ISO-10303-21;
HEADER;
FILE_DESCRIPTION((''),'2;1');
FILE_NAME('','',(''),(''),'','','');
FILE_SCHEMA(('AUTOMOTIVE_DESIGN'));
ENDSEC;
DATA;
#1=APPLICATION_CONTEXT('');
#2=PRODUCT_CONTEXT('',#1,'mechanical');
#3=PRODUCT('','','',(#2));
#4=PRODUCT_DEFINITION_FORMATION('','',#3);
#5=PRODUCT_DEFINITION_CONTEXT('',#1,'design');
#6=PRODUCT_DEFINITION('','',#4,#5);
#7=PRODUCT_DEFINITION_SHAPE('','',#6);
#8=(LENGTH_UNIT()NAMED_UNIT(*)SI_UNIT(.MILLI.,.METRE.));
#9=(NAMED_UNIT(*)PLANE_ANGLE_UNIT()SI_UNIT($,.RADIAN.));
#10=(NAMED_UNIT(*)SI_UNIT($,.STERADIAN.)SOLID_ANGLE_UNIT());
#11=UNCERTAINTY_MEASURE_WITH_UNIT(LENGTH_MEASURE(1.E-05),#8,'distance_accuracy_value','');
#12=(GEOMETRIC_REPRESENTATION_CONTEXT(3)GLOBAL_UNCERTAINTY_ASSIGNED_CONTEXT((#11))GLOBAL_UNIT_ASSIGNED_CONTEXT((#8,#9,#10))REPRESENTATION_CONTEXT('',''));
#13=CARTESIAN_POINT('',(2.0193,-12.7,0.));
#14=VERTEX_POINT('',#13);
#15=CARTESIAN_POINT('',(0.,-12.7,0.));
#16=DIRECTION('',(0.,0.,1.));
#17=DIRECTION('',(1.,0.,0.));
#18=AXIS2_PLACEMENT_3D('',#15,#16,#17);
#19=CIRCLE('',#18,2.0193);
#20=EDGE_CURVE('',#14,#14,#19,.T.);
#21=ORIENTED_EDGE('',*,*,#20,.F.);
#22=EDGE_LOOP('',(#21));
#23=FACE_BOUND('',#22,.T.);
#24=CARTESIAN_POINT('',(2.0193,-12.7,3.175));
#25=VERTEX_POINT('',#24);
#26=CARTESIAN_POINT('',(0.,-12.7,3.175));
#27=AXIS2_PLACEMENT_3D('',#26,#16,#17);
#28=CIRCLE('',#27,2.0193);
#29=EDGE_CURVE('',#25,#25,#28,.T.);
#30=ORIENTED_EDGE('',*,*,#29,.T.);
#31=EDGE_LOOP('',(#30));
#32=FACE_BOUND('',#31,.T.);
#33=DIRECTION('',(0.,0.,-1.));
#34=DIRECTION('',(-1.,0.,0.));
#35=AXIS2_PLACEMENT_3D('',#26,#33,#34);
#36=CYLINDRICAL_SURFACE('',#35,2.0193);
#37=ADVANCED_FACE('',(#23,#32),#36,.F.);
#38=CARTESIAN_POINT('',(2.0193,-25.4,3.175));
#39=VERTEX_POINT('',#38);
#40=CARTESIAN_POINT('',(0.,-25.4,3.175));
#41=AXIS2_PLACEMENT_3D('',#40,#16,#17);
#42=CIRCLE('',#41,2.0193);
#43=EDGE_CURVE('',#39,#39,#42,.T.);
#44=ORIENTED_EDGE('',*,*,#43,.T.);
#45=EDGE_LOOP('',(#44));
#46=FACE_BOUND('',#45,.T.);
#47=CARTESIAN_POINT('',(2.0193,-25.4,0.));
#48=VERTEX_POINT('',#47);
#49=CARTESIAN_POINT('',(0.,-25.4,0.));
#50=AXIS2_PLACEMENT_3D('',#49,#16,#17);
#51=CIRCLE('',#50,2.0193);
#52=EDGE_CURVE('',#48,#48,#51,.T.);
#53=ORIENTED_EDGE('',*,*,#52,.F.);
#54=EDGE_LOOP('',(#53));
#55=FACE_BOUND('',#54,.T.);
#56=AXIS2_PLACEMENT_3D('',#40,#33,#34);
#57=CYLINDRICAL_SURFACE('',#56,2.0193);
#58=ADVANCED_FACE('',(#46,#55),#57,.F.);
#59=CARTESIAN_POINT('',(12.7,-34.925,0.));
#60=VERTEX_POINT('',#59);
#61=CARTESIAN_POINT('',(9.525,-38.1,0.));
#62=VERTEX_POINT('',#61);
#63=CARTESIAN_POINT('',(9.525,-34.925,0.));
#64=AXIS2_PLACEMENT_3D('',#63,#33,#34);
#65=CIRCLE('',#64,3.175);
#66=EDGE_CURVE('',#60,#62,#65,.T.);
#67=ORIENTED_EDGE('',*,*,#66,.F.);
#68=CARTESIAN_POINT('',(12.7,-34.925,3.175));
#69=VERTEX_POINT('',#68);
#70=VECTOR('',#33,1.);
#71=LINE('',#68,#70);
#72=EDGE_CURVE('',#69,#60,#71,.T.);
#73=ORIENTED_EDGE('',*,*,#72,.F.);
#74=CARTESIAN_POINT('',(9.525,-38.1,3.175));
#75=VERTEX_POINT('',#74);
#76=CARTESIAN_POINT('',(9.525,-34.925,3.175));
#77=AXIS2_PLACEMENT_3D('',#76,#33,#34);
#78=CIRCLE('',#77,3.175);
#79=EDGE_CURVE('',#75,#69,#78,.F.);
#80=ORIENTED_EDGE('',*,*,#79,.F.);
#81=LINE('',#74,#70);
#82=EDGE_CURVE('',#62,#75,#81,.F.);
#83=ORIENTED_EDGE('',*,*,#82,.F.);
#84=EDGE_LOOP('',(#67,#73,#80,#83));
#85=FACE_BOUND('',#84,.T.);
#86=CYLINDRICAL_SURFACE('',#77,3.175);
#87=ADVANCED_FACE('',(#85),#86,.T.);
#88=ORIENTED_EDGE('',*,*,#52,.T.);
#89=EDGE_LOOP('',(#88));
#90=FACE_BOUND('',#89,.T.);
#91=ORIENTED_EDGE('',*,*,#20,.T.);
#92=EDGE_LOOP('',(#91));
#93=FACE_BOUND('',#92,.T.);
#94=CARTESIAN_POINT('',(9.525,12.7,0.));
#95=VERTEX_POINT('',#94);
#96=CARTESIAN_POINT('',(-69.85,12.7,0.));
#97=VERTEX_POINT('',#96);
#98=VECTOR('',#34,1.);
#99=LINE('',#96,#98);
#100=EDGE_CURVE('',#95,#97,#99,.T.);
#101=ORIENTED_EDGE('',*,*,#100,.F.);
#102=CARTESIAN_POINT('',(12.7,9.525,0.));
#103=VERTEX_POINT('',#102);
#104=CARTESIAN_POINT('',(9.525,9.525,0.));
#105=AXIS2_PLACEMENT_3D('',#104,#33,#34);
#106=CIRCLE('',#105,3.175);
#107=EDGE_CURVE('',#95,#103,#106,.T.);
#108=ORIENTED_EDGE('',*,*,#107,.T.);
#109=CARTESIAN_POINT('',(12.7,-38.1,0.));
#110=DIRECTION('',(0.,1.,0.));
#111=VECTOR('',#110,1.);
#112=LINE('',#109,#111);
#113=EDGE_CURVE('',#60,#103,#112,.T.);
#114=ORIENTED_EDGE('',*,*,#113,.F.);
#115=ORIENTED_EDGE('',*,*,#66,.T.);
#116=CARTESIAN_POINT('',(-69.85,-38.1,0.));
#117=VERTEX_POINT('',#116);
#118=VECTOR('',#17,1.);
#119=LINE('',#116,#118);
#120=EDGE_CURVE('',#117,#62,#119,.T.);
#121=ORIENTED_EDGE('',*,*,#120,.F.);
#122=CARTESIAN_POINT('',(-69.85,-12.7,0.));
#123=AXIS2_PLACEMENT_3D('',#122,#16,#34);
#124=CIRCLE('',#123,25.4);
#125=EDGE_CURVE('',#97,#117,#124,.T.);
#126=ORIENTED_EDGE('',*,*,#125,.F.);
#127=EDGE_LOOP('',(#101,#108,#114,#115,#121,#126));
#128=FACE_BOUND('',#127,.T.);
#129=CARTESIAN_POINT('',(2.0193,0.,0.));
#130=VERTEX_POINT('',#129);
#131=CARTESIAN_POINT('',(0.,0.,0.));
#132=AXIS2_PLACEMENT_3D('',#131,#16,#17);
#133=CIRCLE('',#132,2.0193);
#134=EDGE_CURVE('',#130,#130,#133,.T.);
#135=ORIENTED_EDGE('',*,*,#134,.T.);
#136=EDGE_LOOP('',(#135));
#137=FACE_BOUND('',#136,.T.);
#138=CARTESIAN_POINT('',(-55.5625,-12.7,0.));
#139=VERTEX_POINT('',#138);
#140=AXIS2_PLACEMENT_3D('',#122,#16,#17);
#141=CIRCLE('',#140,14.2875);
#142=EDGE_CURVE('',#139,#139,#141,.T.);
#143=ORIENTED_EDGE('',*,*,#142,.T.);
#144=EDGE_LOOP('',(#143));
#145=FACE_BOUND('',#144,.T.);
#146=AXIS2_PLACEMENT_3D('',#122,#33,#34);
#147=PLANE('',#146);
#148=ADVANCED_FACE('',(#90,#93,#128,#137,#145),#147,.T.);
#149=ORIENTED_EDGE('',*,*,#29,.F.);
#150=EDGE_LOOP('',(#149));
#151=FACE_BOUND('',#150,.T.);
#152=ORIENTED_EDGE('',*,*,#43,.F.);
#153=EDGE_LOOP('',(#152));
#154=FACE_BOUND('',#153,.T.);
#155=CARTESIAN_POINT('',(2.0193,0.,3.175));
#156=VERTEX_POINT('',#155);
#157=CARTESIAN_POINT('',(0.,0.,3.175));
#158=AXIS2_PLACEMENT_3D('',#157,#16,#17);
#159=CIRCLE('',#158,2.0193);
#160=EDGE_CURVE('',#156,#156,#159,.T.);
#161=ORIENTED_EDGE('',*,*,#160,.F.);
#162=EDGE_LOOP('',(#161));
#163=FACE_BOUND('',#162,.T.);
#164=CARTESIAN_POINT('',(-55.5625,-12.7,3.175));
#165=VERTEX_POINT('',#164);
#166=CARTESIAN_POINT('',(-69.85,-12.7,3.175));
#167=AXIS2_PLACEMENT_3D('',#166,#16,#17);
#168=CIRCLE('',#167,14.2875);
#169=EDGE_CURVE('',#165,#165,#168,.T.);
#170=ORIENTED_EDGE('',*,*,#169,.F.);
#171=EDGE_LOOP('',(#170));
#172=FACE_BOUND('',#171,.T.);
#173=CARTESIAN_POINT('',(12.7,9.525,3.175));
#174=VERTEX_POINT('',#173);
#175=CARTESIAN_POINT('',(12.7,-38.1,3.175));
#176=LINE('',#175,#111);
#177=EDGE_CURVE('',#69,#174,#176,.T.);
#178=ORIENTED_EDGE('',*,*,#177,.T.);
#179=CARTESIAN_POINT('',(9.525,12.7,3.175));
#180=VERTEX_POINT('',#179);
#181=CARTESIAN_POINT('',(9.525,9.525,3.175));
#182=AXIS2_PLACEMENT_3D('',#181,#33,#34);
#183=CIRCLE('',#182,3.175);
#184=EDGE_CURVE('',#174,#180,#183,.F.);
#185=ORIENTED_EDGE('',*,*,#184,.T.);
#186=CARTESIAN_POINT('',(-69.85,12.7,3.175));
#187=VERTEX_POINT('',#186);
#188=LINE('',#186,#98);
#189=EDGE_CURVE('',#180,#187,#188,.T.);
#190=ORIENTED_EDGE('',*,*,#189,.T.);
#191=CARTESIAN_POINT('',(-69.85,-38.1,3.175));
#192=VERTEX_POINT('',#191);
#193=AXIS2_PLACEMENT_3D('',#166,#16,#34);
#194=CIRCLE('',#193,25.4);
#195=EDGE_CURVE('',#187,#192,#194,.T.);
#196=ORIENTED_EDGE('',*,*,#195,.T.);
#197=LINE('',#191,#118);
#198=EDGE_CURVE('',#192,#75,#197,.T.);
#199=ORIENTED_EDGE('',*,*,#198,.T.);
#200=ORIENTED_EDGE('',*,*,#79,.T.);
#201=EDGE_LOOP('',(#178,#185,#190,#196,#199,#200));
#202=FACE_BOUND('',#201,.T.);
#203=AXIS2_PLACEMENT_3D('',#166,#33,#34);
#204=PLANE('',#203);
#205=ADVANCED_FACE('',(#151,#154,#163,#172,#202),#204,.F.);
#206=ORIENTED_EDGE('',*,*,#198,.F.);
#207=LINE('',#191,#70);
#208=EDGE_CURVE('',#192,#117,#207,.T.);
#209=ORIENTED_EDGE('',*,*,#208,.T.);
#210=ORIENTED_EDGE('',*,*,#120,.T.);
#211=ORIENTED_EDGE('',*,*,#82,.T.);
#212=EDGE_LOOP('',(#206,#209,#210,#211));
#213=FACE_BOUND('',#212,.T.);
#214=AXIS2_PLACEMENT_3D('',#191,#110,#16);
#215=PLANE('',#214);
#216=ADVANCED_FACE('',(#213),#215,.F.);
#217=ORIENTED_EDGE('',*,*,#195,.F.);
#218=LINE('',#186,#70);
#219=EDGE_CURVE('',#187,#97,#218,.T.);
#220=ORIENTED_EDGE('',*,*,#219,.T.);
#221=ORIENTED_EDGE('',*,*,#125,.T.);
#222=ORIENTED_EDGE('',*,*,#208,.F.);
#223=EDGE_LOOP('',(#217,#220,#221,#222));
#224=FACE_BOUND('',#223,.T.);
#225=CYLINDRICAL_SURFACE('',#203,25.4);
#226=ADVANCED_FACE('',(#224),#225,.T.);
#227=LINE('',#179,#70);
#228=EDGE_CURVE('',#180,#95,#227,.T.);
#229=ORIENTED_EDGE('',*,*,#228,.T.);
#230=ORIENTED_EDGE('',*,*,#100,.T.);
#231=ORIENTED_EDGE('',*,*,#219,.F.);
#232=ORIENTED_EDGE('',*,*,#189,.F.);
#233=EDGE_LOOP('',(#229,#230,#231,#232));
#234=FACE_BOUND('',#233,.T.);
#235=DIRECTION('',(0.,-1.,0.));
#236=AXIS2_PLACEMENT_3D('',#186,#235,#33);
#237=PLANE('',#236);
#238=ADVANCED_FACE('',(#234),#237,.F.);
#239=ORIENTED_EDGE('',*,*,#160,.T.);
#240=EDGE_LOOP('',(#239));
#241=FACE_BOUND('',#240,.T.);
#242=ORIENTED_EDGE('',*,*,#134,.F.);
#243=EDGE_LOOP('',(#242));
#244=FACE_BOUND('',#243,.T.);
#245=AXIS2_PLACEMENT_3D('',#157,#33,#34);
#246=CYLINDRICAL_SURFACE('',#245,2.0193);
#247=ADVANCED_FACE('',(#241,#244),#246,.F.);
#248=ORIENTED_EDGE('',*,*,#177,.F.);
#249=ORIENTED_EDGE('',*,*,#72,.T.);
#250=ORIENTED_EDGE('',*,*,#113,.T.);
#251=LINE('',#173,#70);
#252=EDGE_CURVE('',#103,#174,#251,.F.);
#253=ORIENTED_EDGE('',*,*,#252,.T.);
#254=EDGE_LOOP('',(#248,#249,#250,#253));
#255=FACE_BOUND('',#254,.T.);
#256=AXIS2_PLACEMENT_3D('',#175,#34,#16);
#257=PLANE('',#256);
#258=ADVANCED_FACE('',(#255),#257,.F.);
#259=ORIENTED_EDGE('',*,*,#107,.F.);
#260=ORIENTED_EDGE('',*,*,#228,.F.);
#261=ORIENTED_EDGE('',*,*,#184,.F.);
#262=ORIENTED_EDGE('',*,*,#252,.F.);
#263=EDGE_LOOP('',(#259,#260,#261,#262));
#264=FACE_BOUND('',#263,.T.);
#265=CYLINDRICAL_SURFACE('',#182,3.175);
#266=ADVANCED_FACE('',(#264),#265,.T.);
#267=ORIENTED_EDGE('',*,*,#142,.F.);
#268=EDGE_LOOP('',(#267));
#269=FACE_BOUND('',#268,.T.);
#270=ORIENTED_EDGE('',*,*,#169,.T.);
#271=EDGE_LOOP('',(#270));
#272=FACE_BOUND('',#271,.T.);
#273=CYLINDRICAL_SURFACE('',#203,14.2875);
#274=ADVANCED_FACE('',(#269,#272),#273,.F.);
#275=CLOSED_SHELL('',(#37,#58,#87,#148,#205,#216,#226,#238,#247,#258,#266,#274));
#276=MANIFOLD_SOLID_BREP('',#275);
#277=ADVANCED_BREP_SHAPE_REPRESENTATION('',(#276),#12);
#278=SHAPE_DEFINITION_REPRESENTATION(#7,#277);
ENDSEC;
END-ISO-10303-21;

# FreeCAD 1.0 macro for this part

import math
import FreeCAD as App
import Part
import Sketcher
Q = App.Units.Quantity


def edges_at(feature, points):
    """Names of the edges that pass closest to the given points."""
    edges = feature.Shape.Edges
    near = lambda p: min(range(len(edges)), key=lambda i: edges[i].distToShape(Part.Vertex(*p))[0])
    return sorted({f"Edge{near(p) + 1}" for p in points})

doc = App.newDocument("Part")
body = doc.addObject("PartDesign::Body", "Body")

sketch1 = body.newObject("Sketcher::SketchObject", "Sketch")
sketch1.AttachmentSupport = (doc.getObject("XY_Plane"), [""])
sketch1.MapMode = "FlatFace"
sketch1.addGeometry([
    Part.LineSegment(App.Vector(12.7, -38.1, 0), App.Vector(12.7, 12.7, 0)),
    Part.LineSegment(App.Vector(12.7, 12.7, 0), App.Vector(-69.8, 12.7, 0)),
    Part.ArcOfCircle(Part.Circle(App.Vector(-69.8, -12.7, 0), App.Vector(0, 0, 1), 25.4), math.radians(90), math.radians(270)),
    Part.LineSegment(App.Vector(-69.8, -38.1, 0), App.Vector(12.7, -38.1, 0)),
    Part.Circle(App.Vector(0, -25.4, 0), App.Vector(0, 0, 1), 2),
    Part.Circle(App.Vector(-69.8, -12.7, 0), App.Vector(0, 0, 1), 14.3),
    Part.Circle(App.Vector(0, -12.7, 0), App.Vector(0, 0, 1), 2),
    Part.Circle(App.Vector(0, 0, 0), App.Vector(0, 0, 1), 2),
], False)
sketch1.addConstraint([
    Sketcher.Constraint("Coincident", 0, 2, 1, 1),
    Sketcher.Constraint("Tangent", 1, 2, 2, 1),
    Sketcher.Constraint("Tangent", 2, 2, 3, 1),
    Sketcher.Constraint("Coincident", 3, 2, 0, 1),
    Sketcher.Constraint("Vertical", 0),
    Sketcher.Constraint("Horizontal", 1),
    Sketcher.Constraint("Horizontal", 3),
    Sketcher.Constraint("Coincident", 7, 3, -1, 1),
    Sketcher.Constraint("Coincident", 5, 3, 2, 3),
    Sketcher.Constraint("Equal", 4, 6),
    Sketcher.Constraint("Equal", 6, 7),
    Sketcher.Constraint("PointOnObject", 4, 3, -2),
    Sketcher.Constraint("PointOnObject", 6, 3, -2),
    Sketcher.Constraint("Horizontal", 5, 3, 6, 3),
    Sketcher.Constraint("Radius", 2, Q("1 in")),
    Sketcher.Constraint("Diameter", 4, Q("0.159 in")),
    Sketcher.Constraint("Diameter", 5, Q("1.125 in")),
    Sketcher.Constraint("DistanceY", 4, 3, -1, 1, Q("1 in")),
    Sketcher.Constraint("DistanceX", 1, 2, 1, 1, Q("3.25 in")),
    Sketcher.Constraint("DistanceY", 2, 3, -1, 1, Q("0.5 in")),
    Sketcher.Constraint("DistanceX", -1, 1, 0, 2, Q("0.5 in")),
])
pad1 = body.newObject("PartDesign::Pad", "Pad")
pad1.Profile = sketch1
pad1.Length = Q("0.125 in")
doc.recompute()

fillet = body.newObject("PartDesign::Fillet", "Fillet")
fillet.Base = (pad1, edges_at(pad1, [(12.7, 12.7, 1.587), (12.7, -38.1, 1.587)]))
fillet.Radius = Q("0.125 in")

doc.recompute()
